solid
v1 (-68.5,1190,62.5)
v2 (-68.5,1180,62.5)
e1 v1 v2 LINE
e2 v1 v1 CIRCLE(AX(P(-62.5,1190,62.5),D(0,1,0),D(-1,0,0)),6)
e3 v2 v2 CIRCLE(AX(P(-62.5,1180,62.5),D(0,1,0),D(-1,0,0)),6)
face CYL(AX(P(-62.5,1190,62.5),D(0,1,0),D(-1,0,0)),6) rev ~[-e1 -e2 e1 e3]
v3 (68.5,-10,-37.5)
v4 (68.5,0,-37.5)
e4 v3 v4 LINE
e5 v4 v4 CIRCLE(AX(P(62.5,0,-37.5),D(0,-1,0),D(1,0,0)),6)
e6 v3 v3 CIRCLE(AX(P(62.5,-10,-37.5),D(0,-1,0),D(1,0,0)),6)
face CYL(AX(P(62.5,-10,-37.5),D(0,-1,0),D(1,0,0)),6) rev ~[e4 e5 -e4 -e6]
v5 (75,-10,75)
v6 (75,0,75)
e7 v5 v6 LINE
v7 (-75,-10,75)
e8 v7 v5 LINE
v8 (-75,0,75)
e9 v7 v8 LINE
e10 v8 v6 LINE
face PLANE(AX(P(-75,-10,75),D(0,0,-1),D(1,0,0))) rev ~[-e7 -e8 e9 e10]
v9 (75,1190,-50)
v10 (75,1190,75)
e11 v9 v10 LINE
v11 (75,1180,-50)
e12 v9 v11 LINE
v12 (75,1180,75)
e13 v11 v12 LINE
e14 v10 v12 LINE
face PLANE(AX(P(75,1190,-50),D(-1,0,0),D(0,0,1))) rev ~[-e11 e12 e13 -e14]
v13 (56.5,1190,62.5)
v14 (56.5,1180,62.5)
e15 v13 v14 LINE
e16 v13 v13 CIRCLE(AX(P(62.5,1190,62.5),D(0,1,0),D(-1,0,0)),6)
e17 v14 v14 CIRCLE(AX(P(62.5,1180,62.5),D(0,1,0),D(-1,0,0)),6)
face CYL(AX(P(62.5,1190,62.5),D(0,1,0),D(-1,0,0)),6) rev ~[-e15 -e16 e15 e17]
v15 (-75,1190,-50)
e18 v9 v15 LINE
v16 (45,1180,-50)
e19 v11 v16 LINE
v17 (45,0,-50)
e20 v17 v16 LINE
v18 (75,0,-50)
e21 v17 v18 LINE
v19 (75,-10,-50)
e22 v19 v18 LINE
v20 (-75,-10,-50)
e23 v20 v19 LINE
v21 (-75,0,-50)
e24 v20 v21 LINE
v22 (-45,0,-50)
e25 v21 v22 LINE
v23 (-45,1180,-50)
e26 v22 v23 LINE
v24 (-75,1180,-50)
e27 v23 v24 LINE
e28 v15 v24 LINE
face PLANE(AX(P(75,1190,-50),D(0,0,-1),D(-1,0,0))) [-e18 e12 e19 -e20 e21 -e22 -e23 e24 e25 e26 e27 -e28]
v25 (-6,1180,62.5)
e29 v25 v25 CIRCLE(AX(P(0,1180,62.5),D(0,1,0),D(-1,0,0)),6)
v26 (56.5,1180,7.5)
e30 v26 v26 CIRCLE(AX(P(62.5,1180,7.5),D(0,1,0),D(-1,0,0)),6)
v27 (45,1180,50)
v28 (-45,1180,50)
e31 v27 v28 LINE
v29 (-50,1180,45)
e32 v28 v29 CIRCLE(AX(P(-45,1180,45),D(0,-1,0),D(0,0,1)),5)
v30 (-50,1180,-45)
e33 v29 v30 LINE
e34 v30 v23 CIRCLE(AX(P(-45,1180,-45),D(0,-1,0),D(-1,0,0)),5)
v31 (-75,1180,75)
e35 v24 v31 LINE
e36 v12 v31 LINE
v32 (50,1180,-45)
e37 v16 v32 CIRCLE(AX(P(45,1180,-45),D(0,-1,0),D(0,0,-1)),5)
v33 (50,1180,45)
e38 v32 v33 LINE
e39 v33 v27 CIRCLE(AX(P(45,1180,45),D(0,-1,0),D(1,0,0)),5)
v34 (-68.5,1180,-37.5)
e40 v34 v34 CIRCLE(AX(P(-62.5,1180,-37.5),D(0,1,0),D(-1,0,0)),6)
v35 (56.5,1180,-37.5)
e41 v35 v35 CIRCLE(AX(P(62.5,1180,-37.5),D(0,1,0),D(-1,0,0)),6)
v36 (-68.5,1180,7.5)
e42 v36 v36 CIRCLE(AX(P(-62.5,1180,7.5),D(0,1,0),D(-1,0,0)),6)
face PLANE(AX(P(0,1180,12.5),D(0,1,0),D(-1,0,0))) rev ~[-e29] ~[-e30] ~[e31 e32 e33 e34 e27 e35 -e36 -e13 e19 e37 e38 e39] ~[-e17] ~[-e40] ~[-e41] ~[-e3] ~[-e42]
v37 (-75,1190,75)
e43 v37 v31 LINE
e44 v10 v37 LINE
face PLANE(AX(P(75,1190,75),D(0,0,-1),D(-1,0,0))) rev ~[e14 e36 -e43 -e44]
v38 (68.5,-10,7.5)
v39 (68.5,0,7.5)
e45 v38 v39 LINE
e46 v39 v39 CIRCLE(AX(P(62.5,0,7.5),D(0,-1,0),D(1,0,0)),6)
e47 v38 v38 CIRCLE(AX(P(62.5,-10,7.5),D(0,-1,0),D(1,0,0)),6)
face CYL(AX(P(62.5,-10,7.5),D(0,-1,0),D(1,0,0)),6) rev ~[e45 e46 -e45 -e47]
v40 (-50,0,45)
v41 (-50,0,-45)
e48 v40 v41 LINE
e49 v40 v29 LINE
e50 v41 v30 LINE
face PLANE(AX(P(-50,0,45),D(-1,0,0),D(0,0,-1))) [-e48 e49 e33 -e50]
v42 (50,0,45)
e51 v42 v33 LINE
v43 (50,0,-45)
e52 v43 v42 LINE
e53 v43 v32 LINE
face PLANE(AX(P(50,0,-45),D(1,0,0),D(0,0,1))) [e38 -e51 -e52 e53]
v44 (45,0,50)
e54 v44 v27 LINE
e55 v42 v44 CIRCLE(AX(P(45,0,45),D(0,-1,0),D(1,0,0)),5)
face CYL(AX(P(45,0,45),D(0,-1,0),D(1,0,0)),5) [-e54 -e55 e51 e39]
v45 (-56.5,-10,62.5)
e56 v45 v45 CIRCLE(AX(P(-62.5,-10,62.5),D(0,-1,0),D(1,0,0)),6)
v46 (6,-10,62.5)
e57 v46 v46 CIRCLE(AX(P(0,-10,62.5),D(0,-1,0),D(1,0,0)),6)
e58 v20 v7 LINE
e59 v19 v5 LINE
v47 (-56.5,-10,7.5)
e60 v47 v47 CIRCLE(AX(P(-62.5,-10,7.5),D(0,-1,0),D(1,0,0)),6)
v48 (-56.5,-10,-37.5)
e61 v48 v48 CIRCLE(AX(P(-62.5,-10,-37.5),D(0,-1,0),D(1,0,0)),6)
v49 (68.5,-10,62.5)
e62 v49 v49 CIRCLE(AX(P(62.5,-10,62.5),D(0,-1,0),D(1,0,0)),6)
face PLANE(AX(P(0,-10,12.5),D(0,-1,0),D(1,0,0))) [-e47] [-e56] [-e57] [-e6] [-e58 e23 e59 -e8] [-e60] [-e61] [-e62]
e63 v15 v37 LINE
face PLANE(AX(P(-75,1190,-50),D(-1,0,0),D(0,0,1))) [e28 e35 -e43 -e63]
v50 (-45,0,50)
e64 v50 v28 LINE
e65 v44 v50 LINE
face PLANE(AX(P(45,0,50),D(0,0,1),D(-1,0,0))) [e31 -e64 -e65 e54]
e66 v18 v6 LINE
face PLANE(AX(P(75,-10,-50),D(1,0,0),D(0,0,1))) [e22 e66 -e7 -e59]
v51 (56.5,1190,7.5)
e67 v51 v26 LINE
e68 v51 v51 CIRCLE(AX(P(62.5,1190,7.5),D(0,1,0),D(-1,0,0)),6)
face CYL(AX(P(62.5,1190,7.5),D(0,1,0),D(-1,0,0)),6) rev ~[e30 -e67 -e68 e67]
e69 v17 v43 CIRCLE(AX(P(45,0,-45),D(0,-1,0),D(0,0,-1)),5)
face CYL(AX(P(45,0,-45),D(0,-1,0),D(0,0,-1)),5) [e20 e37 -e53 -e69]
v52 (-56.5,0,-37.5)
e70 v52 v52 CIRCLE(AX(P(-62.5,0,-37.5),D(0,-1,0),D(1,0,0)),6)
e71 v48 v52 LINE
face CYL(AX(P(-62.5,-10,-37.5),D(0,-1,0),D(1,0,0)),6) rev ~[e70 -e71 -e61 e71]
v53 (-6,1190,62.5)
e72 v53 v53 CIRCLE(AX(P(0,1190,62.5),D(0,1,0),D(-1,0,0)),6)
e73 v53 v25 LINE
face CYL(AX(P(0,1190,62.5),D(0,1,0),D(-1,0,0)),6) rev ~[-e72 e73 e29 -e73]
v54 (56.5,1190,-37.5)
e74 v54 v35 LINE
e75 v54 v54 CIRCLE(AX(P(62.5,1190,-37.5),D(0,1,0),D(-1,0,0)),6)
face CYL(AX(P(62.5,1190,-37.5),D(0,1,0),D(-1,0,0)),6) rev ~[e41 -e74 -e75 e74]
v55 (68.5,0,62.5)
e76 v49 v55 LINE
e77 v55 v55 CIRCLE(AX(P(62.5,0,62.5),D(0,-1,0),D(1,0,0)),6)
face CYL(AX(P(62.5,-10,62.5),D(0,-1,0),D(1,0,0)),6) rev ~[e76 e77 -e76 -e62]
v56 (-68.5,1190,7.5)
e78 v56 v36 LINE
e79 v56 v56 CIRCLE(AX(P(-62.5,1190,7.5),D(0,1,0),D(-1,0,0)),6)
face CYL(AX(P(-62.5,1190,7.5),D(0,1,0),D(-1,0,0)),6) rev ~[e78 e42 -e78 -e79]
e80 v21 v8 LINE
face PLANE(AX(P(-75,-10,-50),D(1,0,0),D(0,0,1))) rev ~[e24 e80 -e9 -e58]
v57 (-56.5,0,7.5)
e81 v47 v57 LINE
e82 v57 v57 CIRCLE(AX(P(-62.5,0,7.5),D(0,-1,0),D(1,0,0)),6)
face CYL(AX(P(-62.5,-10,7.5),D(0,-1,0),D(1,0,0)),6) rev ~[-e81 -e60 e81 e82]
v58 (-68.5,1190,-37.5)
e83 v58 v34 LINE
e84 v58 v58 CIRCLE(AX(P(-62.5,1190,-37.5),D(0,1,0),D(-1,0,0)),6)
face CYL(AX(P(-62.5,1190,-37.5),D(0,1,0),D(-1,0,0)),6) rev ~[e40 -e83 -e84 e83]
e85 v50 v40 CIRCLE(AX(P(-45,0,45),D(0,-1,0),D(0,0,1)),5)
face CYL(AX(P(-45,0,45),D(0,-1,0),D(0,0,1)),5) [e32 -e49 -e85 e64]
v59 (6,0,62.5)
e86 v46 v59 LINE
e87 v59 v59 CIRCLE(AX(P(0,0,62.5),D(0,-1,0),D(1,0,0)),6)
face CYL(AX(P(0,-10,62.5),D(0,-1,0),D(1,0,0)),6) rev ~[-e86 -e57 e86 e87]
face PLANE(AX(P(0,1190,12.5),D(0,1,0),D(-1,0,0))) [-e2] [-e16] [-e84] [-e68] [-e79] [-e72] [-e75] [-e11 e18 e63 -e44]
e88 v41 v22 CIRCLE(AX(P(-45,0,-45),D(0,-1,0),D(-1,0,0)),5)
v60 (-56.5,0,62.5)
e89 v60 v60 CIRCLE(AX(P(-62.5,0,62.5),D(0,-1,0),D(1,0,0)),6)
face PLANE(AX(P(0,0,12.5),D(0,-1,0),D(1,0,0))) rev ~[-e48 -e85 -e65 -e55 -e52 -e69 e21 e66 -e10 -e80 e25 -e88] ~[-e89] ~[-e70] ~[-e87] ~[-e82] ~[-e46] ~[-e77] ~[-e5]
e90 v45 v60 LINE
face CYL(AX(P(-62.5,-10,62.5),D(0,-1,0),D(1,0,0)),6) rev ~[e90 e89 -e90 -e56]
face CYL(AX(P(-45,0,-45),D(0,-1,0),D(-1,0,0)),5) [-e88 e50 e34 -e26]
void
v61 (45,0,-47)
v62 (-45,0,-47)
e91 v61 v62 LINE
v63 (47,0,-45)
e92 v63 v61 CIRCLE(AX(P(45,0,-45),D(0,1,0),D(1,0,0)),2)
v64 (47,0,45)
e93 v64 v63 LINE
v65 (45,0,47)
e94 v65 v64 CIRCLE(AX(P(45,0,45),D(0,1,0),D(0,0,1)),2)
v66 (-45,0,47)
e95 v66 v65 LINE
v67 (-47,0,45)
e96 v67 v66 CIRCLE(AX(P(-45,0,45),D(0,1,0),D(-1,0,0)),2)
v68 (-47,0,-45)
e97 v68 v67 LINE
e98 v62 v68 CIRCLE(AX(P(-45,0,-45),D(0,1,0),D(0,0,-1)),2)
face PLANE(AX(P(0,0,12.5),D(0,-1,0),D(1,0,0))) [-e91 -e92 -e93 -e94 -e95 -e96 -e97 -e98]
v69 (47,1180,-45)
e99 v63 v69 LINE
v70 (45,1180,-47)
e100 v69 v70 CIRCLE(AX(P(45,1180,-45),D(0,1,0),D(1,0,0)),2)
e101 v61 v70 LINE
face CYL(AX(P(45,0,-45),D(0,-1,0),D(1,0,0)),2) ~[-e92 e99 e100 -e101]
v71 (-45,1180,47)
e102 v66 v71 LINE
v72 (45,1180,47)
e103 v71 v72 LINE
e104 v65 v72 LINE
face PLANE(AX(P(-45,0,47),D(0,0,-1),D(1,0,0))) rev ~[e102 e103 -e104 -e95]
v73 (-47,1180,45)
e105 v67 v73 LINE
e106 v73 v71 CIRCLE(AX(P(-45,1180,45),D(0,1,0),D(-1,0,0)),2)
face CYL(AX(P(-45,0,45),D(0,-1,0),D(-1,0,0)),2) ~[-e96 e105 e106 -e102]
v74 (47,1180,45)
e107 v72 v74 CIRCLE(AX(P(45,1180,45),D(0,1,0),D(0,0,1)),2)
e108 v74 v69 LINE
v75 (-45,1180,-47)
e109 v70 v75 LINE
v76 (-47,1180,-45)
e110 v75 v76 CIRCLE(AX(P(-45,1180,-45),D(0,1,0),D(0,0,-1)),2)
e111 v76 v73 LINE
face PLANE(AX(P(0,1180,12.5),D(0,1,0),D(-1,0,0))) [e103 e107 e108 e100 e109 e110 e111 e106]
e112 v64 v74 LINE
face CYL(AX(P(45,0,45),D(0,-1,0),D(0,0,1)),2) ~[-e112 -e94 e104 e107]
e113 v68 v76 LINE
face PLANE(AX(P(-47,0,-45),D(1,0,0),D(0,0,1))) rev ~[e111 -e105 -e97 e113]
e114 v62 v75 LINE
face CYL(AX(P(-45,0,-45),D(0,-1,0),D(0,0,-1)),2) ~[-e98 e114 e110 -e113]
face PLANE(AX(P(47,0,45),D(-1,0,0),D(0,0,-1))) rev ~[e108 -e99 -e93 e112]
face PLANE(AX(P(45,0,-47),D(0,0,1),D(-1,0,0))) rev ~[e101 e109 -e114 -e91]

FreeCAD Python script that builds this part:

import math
import FreeCAD as App
import Part
import Sketcher
from FreeCAD import Vector
Q = App.Units.Quantity

doc = App.newDocument("Part")
body = doc.addObject("PartDesign::Body", "Body")

sketch1 = body.newObject("Sketcher::SketchObject", "Sketch")
sketch1.AttachmentSupport = (doc.getObject("XZ_Plane"), [""])
sketch1.MapMode = "FlatFace"
sketch1.addGeometry([
    Part.ArcOfCircle(Part.Circle(Vector(45, 45, 0), Vector(0, 0, 1), 5), math.radians(0), math.radians(90)),
    Part.LineSegment(Vector(45, 50, 0), Vector(-45, 50, 0)),
    Part.ArcOfCircle(Part.Circle(Vector(-45, 45, 0), Vector(0, 0, 1), 5), math.radians(90), math.radians(180)),
    Part.LineSegment(Vector(-50, 45, 0), Vector(-50, -45, 0)),
    Part.ArcOfCircle(Part.Circle(Vector(-45, -45, 0), Vector(0, 0, 1), 5), math.radians(180), math.radians(270)),
    Part.LineSegment(Vector(-45, -50, 0), Vector(45, -50, 0)),
    Part.ArcOfCircle(Part.Circle(Vector(45, -45, 0), Vector(0, 0, 1), 5), math.radians(-90), math.radians(0)),
    Part.LineSegment(Vector(50, -45, 0), Vector(50, 45, 0)),
    Part.LineSegment(Vector(-47, -45, 0), Vector(-47, 45, 0)),
    Part.ArcOfCircle(Part.Circle(Vector(-45, 45, 0), Vector(0, 0, 1), 2), math.radians(90), math.radians(180)),
    Part.LineSegment(Vector(-45, 47, 0), Vector(45, 47, 0)),
    Part.ArcOfCircle(Part.Circle(Vector(45, 45, 0), Vector(0, 0, 1), 2), math.radians(0), math.radians(90)),
    Part.LineSegment(Vector(47, 45, 0), Vector(47, -45, 0)),
    Part.ArcOfCircle(Part.Circle(Vector(45, -45, 0), Vector(0, 0, 1), 2), math.radians(-90), math.radians(0)),
    Part.LineSegment(Vector(45, -47, 0), Vector(-45, -47, 0)),
    Part.ArcOfCircle(Part.Circle(Vector(-45, -45, 0), Vector(0, 0, 1), 2), math.radians(180), math.radians(270)),
], False)
sketch1.addConstraint([
    Sketcher.Constraint("Tangent", 0, 2, 1, 1),
    Sketcher.Constraint("Tangent", 1, 2, 2, 1),
    Sketcher.Constraint("Tangent", 2, 2, 3, 1),
    Sketcher.Constraint("Tangent", 3, 2, 4, 1),
    Sketcher.Constraint("Tangent", 4, 2, 5, 1),
    Sketcher.Constraint("Tangent", 5, 2, 6, 1),
    Sketcher.Constraint("Tangent", 6, 2, 7, 1),
    Sketcher.Constraint("Tangent", 7, 2, 0, 1),
    Sketcher.Constraint("Tangent", 8, 2, 9, 2),
    Sketcher.Constraint("Tangent", 9, 1, 10, 1),
    Sketcher.Constraint("Tangent", 10, 2, 11, 2),
    Sketcher.Constraint("Tangent", 11, 1, 12, 1),
    Sketcher.Constraint("Tangent", 12, 2, 13, 2),
    Sketcher.Constraint("Tangent", 13, 1, 14, 1),
    Sketcher.Constraint("Tangent", 14, 2, 15, 2),
    Sketcher.Constraint("Tangent", 15, 1, 8, 1),
    Sketcher.Constraint("Horizontal", 1),
    Sketcher.Constraint("Vertical", 3),
    Sketcher.Constraint("Horizontal", 5),
    Sketcher.Constraint("Vertical", 7),
    Sketcher.Constraint("Vertical", 8),
    Sketcher.Constraint("Horizontal", 10),
    Sketcher.Constraint("Vertical", 12),
    Sketcher.Constraint("Horizontal", 14),
    Sketcher.Constraint("Coincident", 9, 3, 2, 3),
    Sketcher.Constraint("Coincident", 11, 3, 0, 3),
    Sketcher.Constraint("Coincident", 13, 3, 6, 3),
    Sketcher.Constraint("Equal", 0, 2),
    Sketcher.Constraint("Equal", 2, 4),
    Sketcher.Constraint("Equal", 4, 6),
    Sketcher.Constraint("Equal", 13, 15),
    Sketcher.Constraint("Symmetric", 0, 3, 4, 3, -1, 1),
    Sketcher.Constraint("Equal", 14, 3),
    Sketcher.Constraint("Radius", 0, Q("5 mm")),
    Sketcher.Constraint("Radius", 9, Q("2 mm")),
    Sketcher.Constraint("DistanceX", 1, 2, 1, 1, Q("90 mm")),
])
pad1 = body.newObject("PartDesign::Pad", "Pad")
pad1.Profile = sketch1
pad1.Length = 1180
pad1.Reversed = True
body2 = doc.addObject("PartDesign::Body", "Body001")

sketch2 = body2.newObject("Sketcher::SketchObject", "Sketch001")
sketch2.AttachmentSupport = (doc.getObject("XZ_Plane001"), [""])
sketch2.MapMode = "FlatFace"
sketch2.AttachmentOffset = App.Placement(Vector(0, 0, 10), App.Rotation())
sketch2.addGeometry([
    Part.LineSegment(Vector(-75, 75, 0), Vector(-75, -50, 0)),
    Part.LineSegment(Vector(-75, -50, 0), Vector(75, -50, 0)),
    Part.LineSegment(Vector(75, -50, 0), Vector(75, 75, 0)),
    Part.LineSegment(Vector(75, 75, 0), Vector(-75, 75, 0)),
    Part.Circle(Vector(-62.5, -37.5, 0), Vector(0, 0, 1), 6),
    Part.Circle(Vector(-62.5, 7.5, 0), Vector(0, 0, 1), 6),
    Part.Circle(Vector(62.5, -37.5, 0), Vector(0, 0, 1), 6),
    Part.Circle(Vector(62.5, 7.5, 0), Vector(0, 0, 1), 6),
    Part.Circle(Vector(-62.5, 62.5, 0), Vector(0, 0, 1), 6),
    Part.Circle(Vector(0, 62.5, 0), Vector(0, 0, 1), 6),
    Part.Circle(Vector(62.5, 62.5, 0), Vector(0, 0, 1), 6),
], False)
sketch2.addConstraint([
    Sketcher.Constraint("Coincident", 0, 2, 1, 1),
    Sketcher.Constraint("Coincident", 1, 2, 2, 1),
    Sketcher.Constraint("Coincident", 2, 2, 3, 1),
    Sketcher.Constraint("Coincident", 3, 2, 0, 1),
    Sketcher.Constraint("Vertical", 0),
    Sketcher.Constraint("Horizontal", 1),
    Sketcher.Constraint("Vertical", 2),
    Sketcher.Constraint("Horizontal", 3),
    Sketcher.Constraint("Equal", 4, 5),
    Sketcher.Constraint("Equal", 5, 6),
    Sketcher.Constraint("Equal", 6, 7),
    Sketcher.Constraint("Equal", 7, 8),
    Sketcher.Constraint("Equal", 8, 9),
    Sketcher.Constraint("Equal", 9, 10),
    Sketcher.Constraint("Symmetric", 4, 3, 6, 3, -2),
    Sketcher.Constraint("Symmetric", 5, 3, 7, 3, -2),
    Sketcher.Constraint("Symmetric", 8, 3, 10, 3, -2),
    Sketcher.Constraint("PointOnObject", 9, 3, -2),
    Sketcher.Constraint("Horizontal", 8, 3, 9, 3),
    Sketcher.Constraint("Vertical", 4, 3, 5, 3),
    Sketcher.Constraint("Vertical", 5, 3, 8, 3),
    Sketcher.Constraint("Diameter", 4, Q("12 mm")),
    Sketcher.Constraint("DistanceX", 1, 1, 1, 2, Q("150 mm")),
    Sketcher.Constraint("DistanceY", 0, 2, 0, 1, Q("125 mm")),
    Sketcher.Constraint("DistanceX", 0, 2, -1, 1, Q("75 mm")),
    Sketcher.Constraint("DistanceY", 0, 2, -1, 1, Q("50 mm")),
    Sketcher.Constraint("DistanceY", 4, 3, 5, 3, Q("45 mm")),
    Sketcher.Constraint("DistanceX", 4, 3, 6, 3, Q("125 mm")),
    Sketcher.Constraint("DistanceY", 5, 3, 8, 3, Q("55 mm")),
    Sketcher.Constraint("DistanceY", 4, 3, -1, 1, Q("37.5 mm")),
])
pad2 = body2.newObject("PartDesign::Pad", "Pad001")
pad2.Profile = sketch2
pad2.Length = 10
pad2.Reversed = True
doc.recompute()

boolean = body.newObject("PartDesign::Boolean", "Boolean")
boolean.Type = "Fuse"
boolean.addObjects([body2])

sketch3 = body.newObject("Sketcher::SketchObject", "Sketch002")
sketch3.AttachmentSupport = (doc.getObject("XZ_Plane"), [""])
sketch3.MapMode = "FlatFace"
sketch3.AttachmentOffset = App.Placement(Vector(0, 0, -1190), App.Rotation())
sketch3.addGeometry([
    Part.LineSegment(Vector(75, 75, 0), Vector(75, -50, 0)),
    Part.LineSegment(Vector(75, -50, 0), Vector(-75, -50, 0)),
    Part.LineSegment(Vector(-75, -50, 0), Vector(-75, 75, 0)),
    Part.LineSegment(Vector(-75, 75, 0), Vector(75, 75, 0)),
    Part.Circle(Vector(62.5, -37.5, 0), Vector(0, 0, 1), 6),
    Part.Circle(Vector(62.5, 7.5, 0), Vector(0, 0, 1), 6),
    Part.Circle(Vector(-62.5, -37.5, 0), Vector(0, 0, 1), 6),
    Part.Circle(Vector(-62.5, 7.5, 0), Vector(0, 0, 1), 6),
    Part.Circle(Vector(62.5, 62.5, 0), Vector(0, 0, 1), 6),
    Part.Circle(Vector(0, 62.5, 0), Vector(0, 0, 1), 6),
    Part.Circle(Vector(-62.5, 62.5, 0), Vector(0, 0, 1), 6),
], False)
sketch3.addConstraint([
    Sketcher.Constraint("Coincident", 0, 2, 1, 1),
    Sketcher.Constraint("Coincident", 1, 2, 2, 1),
    Sketcher.Constraint("Coincident", 2, 2, 3, 1),
    Sketcher.Constraint("Coincident", 3, 2, 0, 1),
    Sketcher.Constraint("Vertical", 0),
    Sketcher.Constraint("Horizontal", 1),
    Sketcher.Constraint("Vertical", 2),
    Sketcher.Constraint("Horizontal", 3),
    Sketcher.Constraint("Equal", 4, 5),
    Sketcher.Constraint("Equal", 5, 6),
    Sketcher.Constraint("Equal", 6, 7),
    Sketcher.Constraint("Equal", 7, 8),
    Sketcher.Constraint("Equal", 8, 9),
    Sketcher.Constraint("Equal", 9, 10),
    Sketcher.Constraint("Symmetric", 4, 3, 6, 3, -2),
    Sketcher.Constraint("Symmetric", 5, 3, 7, 3, -2),
    Sketcher.Constraint("Symmetric", 8, 3, 10, 3, -2),
    Sketcher.Constraint("PointOnObject", 9, 3, -2),
    Sketcher.Constraint("Horizontal", 8, 3, 9, 3),
    Sketcher.Constraint("Vertical", 4, 3, 5, 3),
    Sketcher.Constraint("Vertical", 5, 3, 8, 3),
    Sketcher.Constraint("Diameter", 4, Q("12 mm")),
    Sketcher.Constraint("DistanceX", 1, 2, 1, 1, Q("150 mm")),
    Sketcher.Constraint("DistanceY", 0, 2, 0, 1, Q("125 mm")),
    Sketcher.Constraint("DistanceX", -1, 1, 0, 2, Q("75 mm")),
    Sketcher.Constraint("DistanceY", 0, 2, -1, 1, Q("50 mm")),
    Sketcher.Constraint("DistanceY", 4, 3, 5, 3, Q("45 mm")),
    Sketcher.Constraint("DistanceX", 6, 3, 4, 3, Q("125 mm")),
    Sketcher.Constraint("DistanceY", 5, 3, 8, 3, Q("55 mm")),
    Sketcher.Constraint("DistanceY", 4, 3, -1, 1, Q("37.5 mm")),
])
pad3 = body.newObject("PartDesign::Pad", "Pad002")
pad3.Profile = sketch3
pad3.Length = 10

doc.recompute()
